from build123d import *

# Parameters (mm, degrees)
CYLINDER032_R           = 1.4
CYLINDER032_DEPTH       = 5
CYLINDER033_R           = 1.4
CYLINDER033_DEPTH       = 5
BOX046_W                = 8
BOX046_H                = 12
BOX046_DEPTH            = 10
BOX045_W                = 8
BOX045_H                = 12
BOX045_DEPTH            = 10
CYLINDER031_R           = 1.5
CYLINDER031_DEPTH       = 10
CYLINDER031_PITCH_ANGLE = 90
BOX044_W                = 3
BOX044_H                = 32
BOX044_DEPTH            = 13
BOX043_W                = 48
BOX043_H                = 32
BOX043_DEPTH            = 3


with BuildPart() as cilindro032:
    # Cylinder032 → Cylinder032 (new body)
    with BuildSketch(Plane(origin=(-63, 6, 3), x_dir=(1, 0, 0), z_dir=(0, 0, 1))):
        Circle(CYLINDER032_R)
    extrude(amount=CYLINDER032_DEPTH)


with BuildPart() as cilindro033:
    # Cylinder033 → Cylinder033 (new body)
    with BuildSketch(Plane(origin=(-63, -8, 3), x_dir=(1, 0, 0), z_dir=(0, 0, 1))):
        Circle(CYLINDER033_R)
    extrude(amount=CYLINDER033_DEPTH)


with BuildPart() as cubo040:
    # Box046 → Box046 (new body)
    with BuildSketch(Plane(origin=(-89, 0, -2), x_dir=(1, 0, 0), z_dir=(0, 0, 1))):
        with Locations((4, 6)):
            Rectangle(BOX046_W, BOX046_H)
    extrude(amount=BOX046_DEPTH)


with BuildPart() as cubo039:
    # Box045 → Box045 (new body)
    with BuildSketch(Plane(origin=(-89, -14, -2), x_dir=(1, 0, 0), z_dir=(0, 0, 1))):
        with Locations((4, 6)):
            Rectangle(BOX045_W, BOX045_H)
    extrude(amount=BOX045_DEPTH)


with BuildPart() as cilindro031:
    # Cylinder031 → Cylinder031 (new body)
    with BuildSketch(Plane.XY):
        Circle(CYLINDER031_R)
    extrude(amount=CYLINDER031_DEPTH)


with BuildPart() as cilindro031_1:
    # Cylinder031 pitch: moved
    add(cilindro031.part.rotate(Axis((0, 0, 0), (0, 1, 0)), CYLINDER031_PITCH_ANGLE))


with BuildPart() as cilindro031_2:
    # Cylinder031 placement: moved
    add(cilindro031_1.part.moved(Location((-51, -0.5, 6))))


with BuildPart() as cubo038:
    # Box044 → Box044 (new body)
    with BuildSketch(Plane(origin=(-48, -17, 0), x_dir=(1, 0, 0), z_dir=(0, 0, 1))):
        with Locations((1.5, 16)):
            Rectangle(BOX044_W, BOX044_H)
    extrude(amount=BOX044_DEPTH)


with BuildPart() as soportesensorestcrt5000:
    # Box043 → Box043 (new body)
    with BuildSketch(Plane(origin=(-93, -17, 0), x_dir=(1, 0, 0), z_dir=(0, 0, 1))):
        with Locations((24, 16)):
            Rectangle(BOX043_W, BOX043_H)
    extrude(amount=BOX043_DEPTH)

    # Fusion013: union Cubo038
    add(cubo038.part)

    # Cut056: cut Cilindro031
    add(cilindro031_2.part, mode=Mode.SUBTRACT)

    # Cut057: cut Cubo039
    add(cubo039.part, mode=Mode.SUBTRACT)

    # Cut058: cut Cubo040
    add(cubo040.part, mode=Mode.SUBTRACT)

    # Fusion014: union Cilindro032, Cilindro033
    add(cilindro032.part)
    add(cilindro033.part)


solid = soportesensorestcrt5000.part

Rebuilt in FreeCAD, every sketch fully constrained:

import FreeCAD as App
import Part
import Sketcher

V = App.Vector
Q = App.Units.Quantity

doc = App.newDocument("Part")
body = doc.addObject("PartDesign::Body", "Body")

sketch1 = body.newObject("Sketcher::SketchObject", "Sketch")
sketch1.AttachmentSupport = (doc.getObject("XY_Plane"), [""])
sketch1.MapMode = "FlatFace"
sketch1.AttachmentOffset = App.Placement(V(0, 0, 3), App.Rotation())
sketch1.addGeometry(Part.Circle(V(-63, 6, 0), V(0, 0, 1), 1.4), False)
sketch1.addConstraint(Sketcher.Constraint("Diameter", 0, Q("2.8 mm")))
sketch1.addConstraint(Sketcher.Constraint("DistanceX", 0, 3, -1, 1, Q("63 mm")))
sketch1.addConstraint(Sketcher.Constraint("DistanceY", -1, 1, 0, 3, Q("6 mm")))
pad1 = body.newObject("PartDesign::Pad", "Pad")
pad1.Profile = sketch1
pad1.Length = 5
body2 = doc.addObject("PartDesign::Body", "Body001")

sketch2 = body2.newObject("Sketcher::SketchObject", "Sketch001")
sketch2.AttachmentSupport = (doc.getObject("XY_Plane001"), [""])
sketch2.MapMode = "FlatFace"
sketch2.AttachmentOffset = App.Placement(V(0, 0, 3), App.Rotation())
sketch2.addGeometry(Part.Circle(V(-63, -8, 0), V(0, 0, 1), 1.4), False)
sketch2.addConstraint(Sketcher.Constraint("Diameter", 0, Q("2.8 mm")))
sketch2.addConstraint(Sketcher.Constraint("DistanceX", 0, 3, -1, 1, Q("63 mm")))
sketch2.addConstraint(Sketcher.Constraint("DistanceY", 0, 3, -1, 1, Q("8 mm")))
pad2 = body2.newObject("PartDesign::Pad", "Pad001")
pad2.Profile = sketch2
pad2.Length = 5
body3 = doc.addObject("PartDesign::Body", "Body002")

sketch3 = body3.newObject("Sketcher::SketchObject", "Sketch002")
sketch3.AttachmentSupport = (doc.getObject("XY_Plane002"), [""])
sketch3.MapMode = "FlatFace"
sketch3.AttachmentOffset = App.Placement(V(0, 0, -2), App.Rotation())
sketch3.addGeometry(Part.LineSegment(V(-89, 12, 0), V(-89, 0, 0)), False)
sketch3.addGeometry(Part.LineSegment(V(-89, 0, 0), V(-81, 0, 0)), False)
sketch3.addGeometry(Part.LineSegment(V(-81, 0, 0), V(-81, 12, 0)), False)
sketch3.addGeometry(Part.LineSegment(V(-81, 12, 0), V(-89, 12, 0)), False)
sketch3.addConstraint(Sketcher.Constraint("Coincident", 0, 2, 1, 1))
sketch3.addConstraint(Sketcher.Constraint("Coincident", 1, 2, 2, 1))
sketch3.addConstraint(Sketcher.Constraint("Coincident", 2, 2, 3, 1))
sketch3.addConstraint(Sketcher.Constraint("Coincident", 3, 2, 0, 1))
sketch3.addConstraint(Sketcher.Constraint("Vertical", 0))
sketch3.addConstraint(Sketcher.Constraint("Horizontal", 1))
sketch3.addConstraint(Sketcher.Constraint("Vertical", 2))
sketch3.addConstraint(Sketcher.Constraint("Horizontal", 3))
sketch3.addConstraint(Sketcher.Constraint("PointOnObject", 0, 2, -1))
sketch3.addConstraint(Sketcher.Constraint("DistanceX", 1, 1, 1, 2, Q("8 mm")))
sketch3.addConstraint(Sketcher.Constraint("DistanceY", 0, 2, 0, 1, Q("12 mm")))
sketch3.addConstraint(Sketcher.Constraint("DistanceX", 0, 2, -1, 1, Q("89 mm")))
pad3 = body3.newObject("PartDesign::Pad", "Pad002")
pad3.Profile = sketch3
pad3.Length = 10
body4 = doc.addObject("PartDesign::Body", "Body003")

sketch4 = body4.newObject("Sketcher::SketchObject", "Sketch003")
sketch4.AttachmentSupport = (doc.getObject("XY_Plane003"), [""])
sketch4.MapMode = "FlatFace"
sketch4.AttachmentOffset = App.Placement(V(0, 0, -2), App.Rotation())
sketch4.addGeometry(Part.LineSegment(V(-89, -2, 0), V(-89, -14, 0)), False)
sketch4.addGeometry(Part.LineSegment(V(-89, -14, 0), V(-81, -14, 0)), False)
sketch4.addGeometry(Part.LineSegment(V(-81, -14, 0), V(-81, -2, 0)), False)
sketch4.addGeometry(Part.LineSegment(V(-81, -2, 0), V(-89, -2, 0)), False)
sketch4.addConstraint(Sketcher.Constraint("Coincident", 0, 2, 1, 1))
sketch4.addConstraint(Sketcher.Constraint("Coincident", 1, 2, 2, 1))
sketch4.addConstraint(Sketcher.Constraint("Coincident", 2, 2, 3, 1))
sketch4.addConstraint(Sketcher.Constraint("Coincident", 3, 2, 0, 1))
sketch4.addConstraint(Sketcher.Constraint("Vertical", 0))
sketch4.addConstraint(Sketcher.Constraint("Horizontal", 1))
sketch4.addConstraint(Sketcher.Constraint("Vertical", 2))
sketch4.addConstraint(Sketcher.Constraint("Horizontal", 3))
sketch4.addConstraint(Sketcher.Constraint("DistanceX", 1, 1, 1, 2, Q("8 mm")))
sketch4.addConstraint(Sketcher.Constraint("DistanceY", 0, 2, 0, 1, Q("12 mm")))
sketch4.addConstraint(Sketcher.Constraint("DistanceX", 0, 2, -1, 1, Q("89 mm")))
sketch4.addConstraint(Sketcher.Constraint("DistanceY", 0, 2, -1, 1, Q("14 mm")))
pad4 = body4.newObject("PartDesign::Pad", "Pad003")
pad4.Profile = sketch4
pad4.Length = 10
body5 = doc.addObject("PartDesign::Body", "Body004")

sketch5 = body5.newObject("Sketcher::SketchObject", "Sketch004")
sketch5.AttachmentSupport = (doc.getObject("XY_Plane004"), [""])
sketch5.MapMode = "FlatFace"
sketch5.addGeometry(Part.Circle(V(0, 0, 0), V(0, 0, 1), 1.5), False)
sketch5.addConstraint(Sketcher.Constraint("Coincident", 0, 3, -1, 1))
sketch5.addConstraint(Sketcher.Constraint("Diameter", 0, Q("3 mm")))
pad5 = body5.newObject("PartDesign::Pad", "Pad004")
pad5.Profile = sketch5
pad5.Length = 10
body6 = doc.addObject("PartDesign::Body", "Body005")
doc.recompute()

body5.Placement = App.Placement(V(0, 0, 0), App.Rotation(V(0, 1, 0), 90))
boolean = body6.newObject("PartDesign::Boolean", "Boolean")
boolean.Type = "Fuse"
boolean.addObjects([body5])
body7 = doc.addObject("PartDesign::Body", "Body006")
doc.recompute()

body6.Placement = App.Placement(V(-51, -0.5, 6), App.Rotation(V(0, 0, 1), 0))
boolean2 = body7.newObject("PartDesign::Boolean", "Boolean001")
boolean2.Type = "Fuse"
boolean2.addObjects([body6])
body8 = doc.addObject("PartDesign::Body", "Body007")

sketch6 = body8.newObject("Sketcher::SketchObject", "Sketch005")
sketch6.AttachmentSupport = (doc.getObject("XY_Plane007"), [""])
sketch6.MapMode = "FlatFace"
sketch6.addGeometry(Part.LineSegment(V(-48, 15, 0), V(-48, -17, 0)), False)
sketch6.addGeometry(Part.LineSegment(V(-48, -17, 0), V(-45, -17, 0)), False)
sketch6.addGeometry(Part.LineSegment(V(-45, -17, 0), V(-45, 15, 0)), False)
sketch6.addGeometry(Part.LineSegment(V(-45, 15, 0), V(-48, 15, 0)), False)
sketch6.addConstraint(Sketcher.Constraint("Coincident", 0, 2, 1, 1))
sketch6.addConstraint(Sketcher.Constraint("Coincident", 1, 2, 2, 1))
sketch6.addConstraint(Sketcher.Constraint("Coincident", 2, 2, 3, 1))
sketch6.addConstraint(Sketcher.Constraint("Coincident", 3, 2, 0, 1))
sketch6.addConstraint(Sketcher.Constraint("Vertical", 0))
sketch6.addConstraint(Sketcher.Constraint("Horizontal", 1))
sketch6.addConstraint(Sketcher.Constraint("Vertical", 2))
sketch6.addConstraint(Sketcher.Constraint("Horizontal", 3))
sketch6.addConstraint(Sketcher.Constraint("DistanceX", 1, 1, 1, 2, Q("3 mm")))
sketch6.addConstraint(Sketcher.Constraint("DistanceY", 0, 2, 0, 1, Q("32 mm")))
sketch6.addConstraint(Sketcher.Constraint("DistanceX", 0, 2, -1, 1, Q("48 mm")))
sketch6.addConstraint(Sketcher.Constraint("DistanceY", 0, 2, -1, 1, Q("17 mm")))
pad6 = body8.newObject("PartDesign::Pad", "Pad005")
pad6.Profile = sketch6
pad6.Length = 13
body9 = doc.addObject("PartDesign::Body", "Body008")

sketch7 = body9.newObject("Sketcher::SketchObject", "Sketch006")
sketch7.AttachmentSupport = (doc.getObject("XY_Plane008"), [""])
sketch7.MapMode = "FlatFace"
sketch7.addGeometry(Part.LineSegment(V(-93, 15, 0), V(-93, -17, 0)), False)
sketch7.addGeometry(Part.LineSegment(V(-93, -17, 0), V(-45, -17, 0)), False)
sketch7.addGeometry(Part.LineSegment(V(-45, -17, 0), V(-45, 15, 0)), False)
sketch7.addGeometry(Part.LineSegment(V(-45, 15, 0), V(-93, 15, 0)), False)
sketch7.addConstraint(Sketcher.Constraint("Coincident", 0, 2, 1, 1))
sketch7.addConstraint(Sketcher.Constraint("Coincident", 1, 2, 2, 1))
sketch7.addConstraint(Sketcher.Constraint("Coincident", 2, 2, 3, 1))
sketch7.addConstraint(Sketcher.Constraint("Coincident", 3, 2, 0, 1))
sketch7.addConstraint(Sketcher.Constraint("Vertical", 0))
sketch7.addConstraint(Sketcher.Constraint("Horizontal", 1))
sketch7.addConstraint(Sketcher.Constraint("Vertical", 2))
sketch7.addConstraint(Sketcher.Constraint("Horizontal", 3))
sketch7.addConstraint(Sketcher.Constraint("DistanceX", 1, 1, 1, 2, Q("48 mm")))
sketch7.addConstraint(Sketcher.Constraint("DistanceY", 0, 2, 0, 1, Q("32 mm")))
sketch7.addConstraint(Sketcher.Constraint("DistanceX", 0, 2, -1, 1, Q("93 mm")))
sketch7.addConstraint(Sketcher.Constraint("DistanceY", 0, 2, -1, 1, Q("17 mm")))
pad7 = body9.newObject("PartDesign::Pad", "Pad006")
pad7.Profile = sketch7
pad7.Length = 3
doc.recompute()

boolean3 = body9.newObject("PartDesign::Boolean", "Boolean002")
boolean3.Type = "Fuse"
boolean3.addObjects([body8])
doc.recompute()

boolean4 = body9.newObject("PartDesign::Boolean", "Boolean003")
boolean4.Type = "Cut"
boolean4.addObjects([body7])
doc.recompute()

boolean5 = body9.newObject("PartDesign::Boolean", "Boolean004")
boolean5.Type = "Cut"
boolean5.addObjects([body4])
doc.recompute()

boolean6 = body9.newObject("PartDesign::Boolean", "Boolean005")
boolean6.Type = "Cut"
boolean6.addObjects([body3])
doc.recompute()

boolean7 = body9.newObject("PartDesign::Boolean", "Boolean006")
boolean7.Type = "Fuse"
boolean7.addObjects([body])
doc.recompute()

boolean8 = body9.newObject("PartDesign::Boolean", "Boolean007")
boolean8.Type = "Fuse"
boolean8.addObjects([body2])

doc.recompute()
